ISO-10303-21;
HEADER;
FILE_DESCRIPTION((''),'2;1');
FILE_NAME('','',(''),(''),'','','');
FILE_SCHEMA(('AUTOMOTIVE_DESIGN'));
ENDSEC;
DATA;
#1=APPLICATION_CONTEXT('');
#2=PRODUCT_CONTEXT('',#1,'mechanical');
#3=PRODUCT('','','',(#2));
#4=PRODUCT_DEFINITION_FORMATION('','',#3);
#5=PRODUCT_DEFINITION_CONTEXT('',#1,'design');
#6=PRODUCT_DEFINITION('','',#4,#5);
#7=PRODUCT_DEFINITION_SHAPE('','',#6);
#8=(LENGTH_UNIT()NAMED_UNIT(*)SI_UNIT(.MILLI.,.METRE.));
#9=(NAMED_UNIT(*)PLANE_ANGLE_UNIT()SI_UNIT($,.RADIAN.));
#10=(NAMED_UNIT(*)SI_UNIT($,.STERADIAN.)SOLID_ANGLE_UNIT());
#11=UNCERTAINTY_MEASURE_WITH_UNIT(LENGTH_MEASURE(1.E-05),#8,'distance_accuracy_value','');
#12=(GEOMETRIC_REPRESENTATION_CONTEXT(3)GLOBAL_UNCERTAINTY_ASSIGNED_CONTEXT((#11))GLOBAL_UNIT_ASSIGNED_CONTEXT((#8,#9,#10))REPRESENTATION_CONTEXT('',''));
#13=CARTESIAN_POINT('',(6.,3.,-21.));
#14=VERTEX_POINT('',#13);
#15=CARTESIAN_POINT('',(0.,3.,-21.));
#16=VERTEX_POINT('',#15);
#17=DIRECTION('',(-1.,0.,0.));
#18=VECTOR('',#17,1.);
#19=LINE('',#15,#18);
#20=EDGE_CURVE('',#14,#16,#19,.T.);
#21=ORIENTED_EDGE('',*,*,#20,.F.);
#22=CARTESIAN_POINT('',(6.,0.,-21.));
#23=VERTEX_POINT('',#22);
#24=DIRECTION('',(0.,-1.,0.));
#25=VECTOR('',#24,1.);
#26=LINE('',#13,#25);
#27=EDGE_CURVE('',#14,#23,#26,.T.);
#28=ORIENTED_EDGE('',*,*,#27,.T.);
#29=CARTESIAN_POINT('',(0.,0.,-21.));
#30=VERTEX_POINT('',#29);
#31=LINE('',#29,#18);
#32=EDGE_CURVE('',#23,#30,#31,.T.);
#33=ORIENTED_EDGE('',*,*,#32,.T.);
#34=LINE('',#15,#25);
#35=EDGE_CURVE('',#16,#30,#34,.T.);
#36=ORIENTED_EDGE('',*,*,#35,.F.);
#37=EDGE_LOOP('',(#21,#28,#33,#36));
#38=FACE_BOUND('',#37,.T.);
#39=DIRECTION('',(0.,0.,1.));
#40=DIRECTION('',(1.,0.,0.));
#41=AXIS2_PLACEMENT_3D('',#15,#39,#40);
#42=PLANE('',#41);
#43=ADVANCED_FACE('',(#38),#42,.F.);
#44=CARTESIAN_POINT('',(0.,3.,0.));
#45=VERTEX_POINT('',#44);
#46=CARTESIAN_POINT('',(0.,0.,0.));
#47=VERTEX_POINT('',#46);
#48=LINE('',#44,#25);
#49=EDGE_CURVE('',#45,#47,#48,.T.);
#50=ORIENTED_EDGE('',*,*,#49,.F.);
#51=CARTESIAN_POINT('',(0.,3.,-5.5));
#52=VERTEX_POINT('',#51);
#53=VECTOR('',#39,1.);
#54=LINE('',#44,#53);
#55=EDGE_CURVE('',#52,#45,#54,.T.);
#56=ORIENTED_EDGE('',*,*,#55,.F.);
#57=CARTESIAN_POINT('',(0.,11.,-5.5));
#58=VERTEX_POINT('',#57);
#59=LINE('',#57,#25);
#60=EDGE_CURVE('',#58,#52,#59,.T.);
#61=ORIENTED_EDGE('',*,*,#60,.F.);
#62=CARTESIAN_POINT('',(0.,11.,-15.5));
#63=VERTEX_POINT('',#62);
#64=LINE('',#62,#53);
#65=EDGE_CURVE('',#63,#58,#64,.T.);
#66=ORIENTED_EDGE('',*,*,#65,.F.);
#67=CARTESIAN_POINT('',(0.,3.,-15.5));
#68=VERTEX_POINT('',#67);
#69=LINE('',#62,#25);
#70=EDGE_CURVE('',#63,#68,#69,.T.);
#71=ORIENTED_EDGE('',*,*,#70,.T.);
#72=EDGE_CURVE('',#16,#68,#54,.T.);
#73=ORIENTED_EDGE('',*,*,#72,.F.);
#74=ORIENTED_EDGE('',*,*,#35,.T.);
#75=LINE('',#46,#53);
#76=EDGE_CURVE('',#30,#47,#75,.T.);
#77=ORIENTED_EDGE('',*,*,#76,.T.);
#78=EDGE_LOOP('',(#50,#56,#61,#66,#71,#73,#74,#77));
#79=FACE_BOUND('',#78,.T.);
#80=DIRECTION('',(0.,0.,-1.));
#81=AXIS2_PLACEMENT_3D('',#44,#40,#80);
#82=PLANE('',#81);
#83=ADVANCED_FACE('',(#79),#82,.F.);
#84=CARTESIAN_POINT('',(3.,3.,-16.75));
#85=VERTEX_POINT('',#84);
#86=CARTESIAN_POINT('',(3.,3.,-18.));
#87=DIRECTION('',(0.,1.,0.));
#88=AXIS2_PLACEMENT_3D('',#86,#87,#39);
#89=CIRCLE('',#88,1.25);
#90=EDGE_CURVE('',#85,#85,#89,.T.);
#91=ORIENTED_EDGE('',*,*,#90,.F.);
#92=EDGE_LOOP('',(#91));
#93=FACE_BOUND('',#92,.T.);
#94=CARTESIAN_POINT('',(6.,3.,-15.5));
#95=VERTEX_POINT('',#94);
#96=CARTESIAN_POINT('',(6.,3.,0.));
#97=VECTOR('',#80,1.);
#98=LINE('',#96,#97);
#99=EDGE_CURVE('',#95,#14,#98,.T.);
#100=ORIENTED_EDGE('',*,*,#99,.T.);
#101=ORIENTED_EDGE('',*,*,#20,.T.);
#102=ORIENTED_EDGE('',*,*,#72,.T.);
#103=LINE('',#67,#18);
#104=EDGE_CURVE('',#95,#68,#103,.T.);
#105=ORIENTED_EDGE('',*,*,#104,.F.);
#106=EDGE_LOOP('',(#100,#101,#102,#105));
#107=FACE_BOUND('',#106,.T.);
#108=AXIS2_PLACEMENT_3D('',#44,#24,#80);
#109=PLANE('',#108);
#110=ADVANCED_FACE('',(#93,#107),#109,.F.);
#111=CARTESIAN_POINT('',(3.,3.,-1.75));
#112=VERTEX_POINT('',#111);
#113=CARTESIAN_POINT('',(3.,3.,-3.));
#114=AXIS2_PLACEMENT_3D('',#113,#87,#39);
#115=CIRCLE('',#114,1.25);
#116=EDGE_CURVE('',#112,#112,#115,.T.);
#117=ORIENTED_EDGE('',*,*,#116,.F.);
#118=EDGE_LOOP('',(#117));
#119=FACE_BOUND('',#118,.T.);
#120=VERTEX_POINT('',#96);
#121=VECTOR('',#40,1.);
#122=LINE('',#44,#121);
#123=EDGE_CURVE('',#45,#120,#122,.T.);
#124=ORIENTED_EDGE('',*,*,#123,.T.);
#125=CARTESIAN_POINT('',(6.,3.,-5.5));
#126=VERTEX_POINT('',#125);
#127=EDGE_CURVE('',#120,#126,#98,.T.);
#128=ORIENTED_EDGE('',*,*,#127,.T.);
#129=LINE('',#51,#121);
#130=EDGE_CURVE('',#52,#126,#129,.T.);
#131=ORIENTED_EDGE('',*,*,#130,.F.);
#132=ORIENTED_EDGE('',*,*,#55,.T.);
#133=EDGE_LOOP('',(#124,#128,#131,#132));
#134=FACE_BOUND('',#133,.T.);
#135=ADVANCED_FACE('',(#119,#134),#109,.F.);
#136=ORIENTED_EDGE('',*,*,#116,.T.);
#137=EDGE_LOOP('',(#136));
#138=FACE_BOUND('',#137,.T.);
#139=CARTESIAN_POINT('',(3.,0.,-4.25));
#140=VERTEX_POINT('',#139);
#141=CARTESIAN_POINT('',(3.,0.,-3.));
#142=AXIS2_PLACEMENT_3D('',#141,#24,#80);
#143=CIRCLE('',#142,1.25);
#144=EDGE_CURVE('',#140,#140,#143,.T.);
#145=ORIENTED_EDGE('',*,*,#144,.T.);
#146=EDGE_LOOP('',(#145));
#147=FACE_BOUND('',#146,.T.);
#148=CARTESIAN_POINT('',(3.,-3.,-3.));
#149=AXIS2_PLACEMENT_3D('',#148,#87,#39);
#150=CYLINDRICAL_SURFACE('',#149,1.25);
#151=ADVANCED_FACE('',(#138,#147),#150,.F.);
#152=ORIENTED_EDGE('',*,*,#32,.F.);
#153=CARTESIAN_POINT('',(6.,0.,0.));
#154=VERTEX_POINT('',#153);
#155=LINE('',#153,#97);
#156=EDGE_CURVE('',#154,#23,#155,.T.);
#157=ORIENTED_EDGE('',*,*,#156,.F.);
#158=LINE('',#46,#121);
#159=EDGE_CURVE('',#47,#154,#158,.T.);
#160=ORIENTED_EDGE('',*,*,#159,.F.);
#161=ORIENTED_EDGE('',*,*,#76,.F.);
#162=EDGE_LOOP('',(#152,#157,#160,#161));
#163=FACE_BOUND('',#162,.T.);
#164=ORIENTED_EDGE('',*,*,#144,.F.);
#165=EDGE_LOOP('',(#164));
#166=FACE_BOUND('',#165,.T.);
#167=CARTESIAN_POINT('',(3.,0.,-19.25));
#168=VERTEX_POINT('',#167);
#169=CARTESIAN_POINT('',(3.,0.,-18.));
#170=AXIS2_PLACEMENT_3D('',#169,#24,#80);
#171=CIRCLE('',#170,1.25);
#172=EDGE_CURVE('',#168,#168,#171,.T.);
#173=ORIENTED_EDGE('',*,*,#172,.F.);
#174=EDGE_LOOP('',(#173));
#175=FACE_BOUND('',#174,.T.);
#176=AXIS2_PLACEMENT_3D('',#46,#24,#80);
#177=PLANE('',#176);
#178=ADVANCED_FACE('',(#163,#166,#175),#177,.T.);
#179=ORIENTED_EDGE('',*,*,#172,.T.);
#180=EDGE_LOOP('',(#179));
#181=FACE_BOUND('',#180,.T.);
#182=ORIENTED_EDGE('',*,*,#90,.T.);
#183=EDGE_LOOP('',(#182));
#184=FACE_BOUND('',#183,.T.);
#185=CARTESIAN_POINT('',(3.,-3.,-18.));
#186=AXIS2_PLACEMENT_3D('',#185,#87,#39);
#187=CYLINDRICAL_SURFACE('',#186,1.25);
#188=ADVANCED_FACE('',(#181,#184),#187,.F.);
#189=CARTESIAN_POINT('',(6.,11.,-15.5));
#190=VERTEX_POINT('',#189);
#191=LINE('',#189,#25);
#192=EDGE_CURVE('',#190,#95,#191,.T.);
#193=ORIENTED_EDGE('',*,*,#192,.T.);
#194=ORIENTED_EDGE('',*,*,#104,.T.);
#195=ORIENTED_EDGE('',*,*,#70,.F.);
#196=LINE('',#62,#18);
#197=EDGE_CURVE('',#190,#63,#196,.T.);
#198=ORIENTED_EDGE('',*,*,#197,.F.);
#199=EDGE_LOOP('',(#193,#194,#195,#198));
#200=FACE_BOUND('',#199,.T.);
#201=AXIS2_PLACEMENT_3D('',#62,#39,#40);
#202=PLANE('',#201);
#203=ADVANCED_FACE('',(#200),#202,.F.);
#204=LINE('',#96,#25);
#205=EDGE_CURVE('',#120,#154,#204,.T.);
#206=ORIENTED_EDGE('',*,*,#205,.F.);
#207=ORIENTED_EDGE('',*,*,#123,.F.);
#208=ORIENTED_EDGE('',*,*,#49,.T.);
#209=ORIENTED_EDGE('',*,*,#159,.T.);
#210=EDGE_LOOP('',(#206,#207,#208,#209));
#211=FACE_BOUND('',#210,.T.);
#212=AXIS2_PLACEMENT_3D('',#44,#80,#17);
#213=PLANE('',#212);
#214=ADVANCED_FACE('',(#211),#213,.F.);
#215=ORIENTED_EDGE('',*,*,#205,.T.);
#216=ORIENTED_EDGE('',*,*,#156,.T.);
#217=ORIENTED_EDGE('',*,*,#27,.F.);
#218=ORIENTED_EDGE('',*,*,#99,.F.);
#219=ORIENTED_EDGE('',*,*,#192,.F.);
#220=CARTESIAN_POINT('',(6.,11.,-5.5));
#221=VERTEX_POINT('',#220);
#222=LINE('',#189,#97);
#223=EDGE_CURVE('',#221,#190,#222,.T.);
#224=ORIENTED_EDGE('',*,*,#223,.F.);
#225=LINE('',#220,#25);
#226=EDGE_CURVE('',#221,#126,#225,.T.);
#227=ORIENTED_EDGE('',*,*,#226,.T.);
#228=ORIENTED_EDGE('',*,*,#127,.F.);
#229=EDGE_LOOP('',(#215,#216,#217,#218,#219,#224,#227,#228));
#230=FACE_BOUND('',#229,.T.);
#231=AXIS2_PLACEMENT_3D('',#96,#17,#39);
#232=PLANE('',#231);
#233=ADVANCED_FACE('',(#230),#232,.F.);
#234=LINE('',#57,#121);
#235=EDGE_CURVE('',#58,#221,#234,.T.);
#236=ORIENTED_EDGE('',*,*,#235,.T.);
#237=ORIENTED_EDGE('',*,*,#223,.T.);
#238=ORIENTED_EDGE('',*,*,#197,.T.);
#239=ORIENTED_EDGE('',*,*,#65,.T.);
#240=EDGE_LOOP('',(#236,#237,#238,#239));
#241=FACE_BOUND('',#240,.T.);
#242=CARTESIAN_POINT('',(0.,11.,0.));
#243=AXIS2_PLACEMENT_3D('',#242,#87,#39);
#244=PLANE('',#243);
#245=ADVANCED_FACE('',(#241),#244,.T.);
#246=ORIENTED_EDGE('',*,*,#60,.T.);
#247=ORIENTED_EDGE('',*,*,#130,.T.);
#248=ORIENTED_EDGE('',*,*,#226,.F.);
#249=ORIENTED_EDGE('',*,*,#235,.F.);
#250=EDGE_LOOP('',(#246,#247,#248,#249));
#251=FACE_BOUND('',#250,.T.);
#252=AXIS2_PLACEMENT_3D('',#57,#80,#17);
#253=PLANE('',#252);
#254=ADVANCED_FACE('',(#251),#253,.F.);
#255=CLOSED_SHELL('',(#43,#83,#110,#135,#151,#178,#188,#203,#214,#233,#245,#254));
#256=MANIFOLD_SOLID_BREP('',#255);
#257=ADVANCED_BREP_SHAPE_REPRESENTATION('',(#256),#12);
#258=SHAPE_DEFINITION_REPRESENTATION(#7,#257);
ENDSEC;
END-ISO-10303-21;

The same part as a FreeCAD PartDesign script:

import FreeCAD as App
import Part
import Sketcher

V = App.Vector

doc = App.newDocument("Part")
body = doc.addObject("PartDesign::Body", "Body")

sketch1 = body.newObject("Sketcher::SketchObject", "Sketch")
sketch1.AttachmentSupport = (doc.getObject("XZ_Plane"), [""])
sketch1.MapMode = "FlatFace"
sketch1.addGeometry(Part.LineSegment(V(0, -21, 0), V(0, 0, 0)), False)
sketch1.addGeometry(Part.LineSegment(V(0, 0, 0), V(6, 0, 0)), False)
sketch1.addGeometry(Part.LineSegment(V(6, 0, 0), V(6, -21, 0)), False)
sketch1.addGeometry(Part.LineSegment(V(6, -21, 0), V(0, -21, 0)), False)
sketch1.addConstraint(Sketcher.Constraint("Coincident", 0, 2, 1, 1))
sketch1.addConstraint(Sketcher.Constraint("Coincident", 1, 2, 2, 1))
sketch1.addConstraint(Sketcher.Constraint("Coincident", 2, 2, 3, 1))
sketch1.addConstraint(Sketcher.Constraint("Coincident", 3, 2, 0, 1))
sketch1.addConstraint(Sketcher.Constraint("Vertical", 0))
sketch1.addConstraint(Sketcher.Constraint("Horizontal", 1))
sketch1.addConstraint(Sketcher.Constraint("Vertical", 2))
sketch1.addConstraint(Sketcher.Constraint("Horizontal", 3))
sketch1.addConstraint(Sketcher.Constraint("Coincident", 0, 2, -1, 1))
sketch1.addConstraint(Sketcher.Constraint("DistanceX", 1, 1, 1, 2, 6.0))
sketch1.addConstraint(Sketcher.Constraint("DistanceY", 0, 1, 0, 2, 21.0))
pad1 = body.newObject("PartDesign::Pad", "Pad")
pad1.Profile = sketch1
pad1.Length = 3
pad1.Reversed = True

sketch2 = body.newObject("Sketcher::SketchObject", "Sketch001")
sketch2.AttachmentSupport = (doc.getObject("XZ_Plane"), [""])
sketch2.MapMode = "FlatFace"
sketch2.AttachmentOffset = App.Placement(V(0, 0, -3), App.Rotation())
sketch2.addGeometry(Part.LineSegment(V(0, -16, 0), V(0, -6, 0)), False)
sketch2.addGeometry(Part.LineSegment(V(0, -6, 0), V(6, -6, 0)), False)
sketch2.addGeometry(Part.LineSegment(V(6, -6, 0), V(6, -16, 0)), False)
sketch2.addGeometry(Part.LineSegment(V(6, -16, 0), V(0, -16, 0)), False)
sketch2.addConstraint(Sketcher.Constraint("Coincident", 0, 2, 1, 1))
sketch2.addConstraint(Sketcher.Constraint("Coincident", 1, 2, 2, 1))
sketch2.addConstraint(Sketcher.Constraint("Coincident", 2, 2, 3, 1))
sketch2.addConstraint(Sketcher.Constraint("Coincident", 3, 2, 0, 1))
sketch2.addConstraint(Sketcher.Constraint("Vertical", 0))
sketch2.addConstraint(Sketcher.Constraint("Horizontal", 1))
sketch2.addConstraint(Sketcher.Constraint("Vertical", 2))
sketch2.addConstraint(Sketcher.Constraint("Horizontal", 3))
sketch2.addConstraint(Sketcher.Constraint("PointOnObject", 0, 2, -2))
sketch2.addConstraint(Sketcher.Constraint("DistanceX", 1, 1, 1, 2, 6.0))
sketch2.addConstraint(Sketcher.Constraint("DistanceY", 0, 1, 0, 2, 10.0))
sketch2.addConstraint(Sketcher.Constraint("DistanceY", 0, 2, -1, 1, 5.5))
pad2 = body.newObject("PartDesign::Pad", "Pad001")
pad2.Profile = sketch2
pad2.Length = 8
pad2.Reversed = True

sketch3 = body.newObject("Sketcher::SketchObject", "Sketch002")
sketch3.AttachmentSupport = (doc.getObject("XZ_Plane"), [""])
sketch3.MapMode = "FlatFace"
sketch3.AttachmentOffset = App.Placement(V(0, 0, -3), App.Rotation())
sketch3.addGeometry(Part.Circle(V(3, -18, 0), V(0, 0, 1), 1.2), False)
sketch3.addConstraint(Sketcher.Constraint("Diameter", 0, 2.5))
sketch3.addConstraint(Sketcher.Constraint("DistanceX", -1, 1, 0, 3, 3.0))
sketch3.addConstraint(Sketcher.Constraint("DistanceY", 0, 3, -1, 1, 18.0))
pocket1 = body.newObject("PartDesign::Pocket", "Pocket")
pocket1.Profile = sketch3
pocket1.Length = 6
pocket1.Reversed = True

sketch4 = body.newObject("Sketcher::SketchObject", "Sketch003")
sketch4.AttachmentSupport = (doc.getObject("XZ_Plane"), [""])
sketch4.MapMode = "FlatFace"
sketch4.AttachmentOffset = App.Placement(V(0, 0, -3), App.Rotation())
sketch4.addGeometry(Part.Circle(V(3, -3, 0), V(0, 0, 1), 1.2), False)
sketch4.addConstraint(Sketcher.Constraint("Diameter", 0, 2.5))
sketch4.addConstraint(Sketcher.Constraint("DistanceX", -1, 1, 0, 3, 3.0))
sketch4.addConstraint(Sketcher.Constraint("DistanceY", 0, 3, -1, 1, 3.0))
pocket2 = body.newObject("PartDesign::Pocket", "Pocket001")
pocket2.Profile = sketch4
pocket2.Length = 6
pocket2.Reversed = True

doc.recompute()
